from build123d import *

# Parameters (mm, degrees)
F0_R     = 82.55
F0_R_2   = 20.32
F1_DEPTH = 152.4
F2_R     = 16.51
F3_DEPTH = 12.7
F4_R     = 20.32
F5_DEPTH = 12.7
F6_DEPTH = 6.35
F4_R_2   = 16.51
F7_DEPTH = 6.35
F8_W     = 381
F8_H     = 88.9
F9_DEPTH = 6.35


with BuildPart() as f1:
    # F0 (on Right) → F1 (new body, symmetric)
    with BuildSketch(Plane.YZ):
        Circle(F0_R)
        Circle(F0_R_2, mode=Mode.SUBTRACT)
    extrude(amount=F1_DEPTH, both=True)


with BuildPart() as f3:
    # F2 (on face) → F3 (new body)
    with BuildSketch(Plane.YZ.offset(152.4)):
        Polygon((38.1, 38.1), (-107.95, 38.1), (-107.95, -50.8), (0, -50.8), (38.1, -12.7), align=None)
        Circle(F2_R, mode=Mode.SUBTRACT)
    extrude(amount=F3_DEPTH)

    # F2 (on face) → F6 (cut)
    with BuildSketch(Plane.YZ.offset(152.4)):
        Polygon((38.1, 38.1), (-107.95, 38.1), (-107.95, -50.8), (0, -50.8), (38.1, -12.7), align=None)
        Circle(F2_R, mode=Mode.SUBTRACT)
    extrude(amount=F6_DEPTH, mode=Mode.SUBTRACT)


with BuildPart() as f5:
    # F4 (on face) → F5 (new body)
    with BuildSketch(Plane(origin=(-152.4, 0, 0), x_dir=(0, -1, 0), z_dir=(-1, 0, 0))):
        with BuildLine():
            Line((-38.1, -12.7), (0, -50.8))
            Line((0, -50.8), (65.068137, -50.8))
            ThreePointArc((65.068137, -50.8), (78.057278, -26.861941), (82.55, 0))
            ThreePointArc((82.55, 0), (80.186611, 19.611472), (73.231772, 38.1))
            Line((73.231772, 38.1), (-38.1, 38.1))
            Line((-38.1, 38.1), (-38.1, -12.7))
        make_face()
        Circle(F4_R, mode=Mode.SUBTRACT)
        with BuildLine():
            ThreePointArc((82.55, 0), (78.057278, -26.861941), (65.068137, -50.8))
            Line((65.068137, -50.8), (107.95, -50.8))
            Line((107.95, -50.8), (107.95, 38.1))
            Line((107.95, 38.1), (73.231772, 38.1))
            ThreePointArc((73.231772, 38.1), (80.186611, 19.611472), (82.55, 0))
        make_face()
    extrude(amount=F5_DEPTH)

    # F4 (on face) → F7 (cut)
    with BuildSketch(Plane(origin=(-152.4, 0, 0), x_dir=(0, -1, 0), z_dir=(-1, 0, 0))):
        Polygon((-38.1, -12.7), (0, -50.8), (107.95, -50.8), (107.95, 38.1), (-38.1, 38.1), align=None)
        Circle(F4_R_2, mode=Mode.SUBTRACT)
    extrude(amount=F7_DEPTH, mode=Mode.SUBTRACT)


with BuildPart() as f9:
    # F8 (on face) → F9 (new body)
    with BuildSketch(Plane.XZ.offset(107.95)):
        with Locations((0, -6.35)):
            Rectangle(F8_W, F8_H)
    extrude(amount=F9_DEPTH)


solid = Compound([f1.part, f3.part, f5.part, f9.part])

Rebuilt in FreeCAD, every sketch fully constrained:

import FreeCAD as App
import Part
import Sketcher

V = App.Vector
Q = App.Units.Quantity

doc = App.newDocument("Part")
body = doc.addObject("PartDesign::Body", "Body")

sketch1 = body.newObject("Sketcher::SketchObject", "Sketch")
sketch1.AttachmentSupport = (doc.getObject("YZ_Plane"), [""])
sketch1.MapMode = "FlatFace"
sketch1.addGeometry(Part.Circle(V(0, 0, 0), V(0, 0, 1), 82.55), False)
sketch1.addGeometry(Part.Circle(V(0, 0, 0), V(0, 0, 1), 20.32), False)
sketch1.addConstraint(Sketcher.Constraint("Coincident", 0, 3, -1, 1))
sketch1.addConstraint(Sketcher.Constraint("Coincident", 1, 3, -1, 1))
sketch1.addConstraint(Sketcher.Constraint("Diameter", 0, Q("6.5 in")))
sketch1.addConstraint(Sketcher.Constraint("Diameter", 1, Q("1.6 in")))
pad1 = body.newObject("PartDesign::Pad", "Pad")
pad1.Profile = sketch1
pad1.Length = Q("12 in")
pad1.Midplane = True
body2 = doc.addObject("PartDesign::Body", "Body001")

sketch2 = body2.newObject("Sketcher::SketchObject", "Sketch001")
sketch2.AttachmentSupport = (doc.getObject("YZ_Plane001"), [""])
sketch2.MapMode = "FlatFace"
sketch2.AttachmentOffset = App.Placement(V(0, 0, 6 * 25.4), App.Rotation())
sketch2.addGeometry(Part.LineSegment(V(38.1, 38.1, 0), V(-107.95, 38.1, 0)), False)
sketch2.addGeometry(Part.LineSegment(V(-107.95, 38.1, 0), V(-107.95, -50.8, 0)), False)
sketch2.addGeometry(Part.LineSegment(V(-107.95, -50.8, 0), V(0, -50.8, 0)), False)
sketch2.addGeometry(Part.LineSegment(V(0, -50.8, 0), V(38.1, -12.7, 0)), False)
sketch2.addGeometry(Part.LineSegment(V(38.1, -12.7, 0), V(38.1, 38.1, 0)), False)
sketch2.addGeometry(Part.Circle(V(0, 0, 0), V(0, 0, 1), 16.51), False)
sketch2.addConstraint(Sketcher.Constraint("Coincident", 0, 2, 1, 1))
sketch2.addConstraint(Sketcher.Constraint("Coincident", 1, 2, 2, 1))
sketch2.addConstraint(Sketcher.Constraint("Coincident", 2, 2, 3, 1))
sketch2.addConstraint(Sketcher.Constraint("Coincident", 3, 2, 4, 1))
sketch2.addConstraint(Sketcher.Constraint("Coincident", 4, 2, 0, 1))
sketch2.addConstraint(Sketcher.Constraint("Horizontal", 0))
sketch2.addConstraint(Sketcher.Constraint("Vertical", 1))
sketch2.addConstraint(Sketcher.Constraint("Horizontal", 2))
sketch2.addConstraint(Sketcher.Constraint("Vertical", 4))
sketch2.addConstraint(Sketcher.Constraint("Coincident", 5, 3, -1, 1))
sketch2.addConstraint(Sketcher.Constraint("PointOnObject", 2, 2, -2))
sketch2.addConstraint(Sketcher.Constraint("Diameter", 5, Q("1.3 in")))
sketch2.addConstraint(Sketcher.Constraint("DistanceY", 4, 1, 4, 2, Q("2 in")))
sketch2.addConstraint(Sketcher.Constraint("DistanceY", 1, 2, 1, 1, Q("3.5 in")))
sketch2.addConstraint(Sketcher.Constraint("DistanceY", 1, 2, -1, 1, Q("2 in")))
sketch2.addConstraint(Sketcher.Constraint("Angle", 3, Q("45 deg")))
sketch2.addConstraint(Sketcher.Constraint("DistanceX", 0, 2, 0, 1, Q("5.75 in")))
pad2 = body2.newObject("PartDesign::Pad", "Pad001")
pad2.Profile = sketch2
pad2.Length = Q("0.5 in")

sketch3 = body2.newObject("Sketcher::SketchObject", "Sketch002")
sketch3.AttachmentSupport = (doc.getObject("YZ_Plane001"), [""])
sketch3.MapMode = "FlatFace"
sketch3.AttachmentOffset = App.Placement(V(0, 0, 6 * 25.4), App.Rotation())
sketch3.addGeometry(Part.LineSegment(V(38.1, 38.1, 0), V(-107.95, 38.1, 0)), False)
sketch3.addGeometry(Part.LineSegment(V(-107.95, 38.1, 0), V(-107.95, -50.8, 0)), False)
sketch3.addGeometry(Part.LineSegment(V(-107.95, -50.8, 0), V(0, -50.8, 0)), False)
sketch3.addGeometry(Part.LineSegment(V(0, -50.8, 0), V(38.1, -12.7, 0)), False)
sketch3.addGeometry(Part.LineSegment(V(38.1, -12.7, 0), V(38.1, 38.1, 0)), False)
sketch3.addGeometry(Part.Circle(V(0, 0, 0), V(0, 0, 1), 16.51), False)
sketch3.addConstraint(Sketcher.Constraint("Coincident", 0, 2, 1, 1))
sketch3.addConstraint(Sketcher.Constraint("Coincident", 1, 2, 2, 1))
sketch3.addConstraint(Sketcher.Constraint("Coincident", 2, 2, 3, 1))
sketch3.addConstraint(Sketcher.Constraint("Coincident", 3, 2, 4, 1))
sketch3.addConstraint(Sketcher.Constraint("Coincident", 4, 2, 0, 1))
sketch3.addConstraint(Sketcher.Constraint("Horizontal", 0))
sketch3.addConstraint(Sketcher.Constraint("Vertical", 1))
sketch3.addConstraint(Sketcher.Constraint("Horizontal", 2))
sketch3.addConstraint(Sketcher.Constraint("Vertical", 4))
sketch3.addConstraint(Sketcher.Constraint("Coincident", 5, 3, -1, 1))
sketch3.addConstraint(Sketcher.Constraint("PointOnObject", 2, 2, -2))
sketch3.addConstraint(Sketcher.Constraint("Diameter", 5, Q("1.3 in")))
sketch3.addConstraint(Sketcher.Constraint("DistanceY", 4, 1, 4, 2, Q("2 in")))
sketch3.addConstraint(Sketcher.Constraint("DistanceY", 1, 2, 1, 1, Q("3.5 in")))
sketch3.addConstraint(Sketcher.Constraint("DistanceY", 1, 2, -1, 1, Q("2 in")))
sketch3.addConstraint(Sketcher.Constraint("Angle", 3, Q("45 deg")))
sketch3.addConstraint(Sketcher.Constraint("DistanceX", 0, 2, 0, 1, Q("5.75 in")))
pocket1 = body2.newObject("PartDesign::Pocket", "Pocket")
pocket1.Profile = sketch3
pocket1.Length = Q("0.25 in")
pocket1.Reversed = True
body3 = doc.addObject("PartDesign::Body", "Body002")

sketch4 = body3.newObject("Sketcher::SketchObject", "Sketch003")
sketch4.AttachmentSupport = (doc.getObject("YZ_Plane002"), [""])
sketch4.MapMode = "FlatFace"
sketch4.AttachmentOffset = App.Placement(V(0, 0, -6 * 25.4), App.Rotation())
sketch4.addGeometry(Part.LineSegment(V(38.1, -12.7, 0), V(0, -50.8, 0)), False)
sketch4.addGeometry(Part.LineSegment(V(0, -50.8, 0), V(-107.95, -50.8, 0)), False)
sketch4.addGeometry(Part.LineSegment(V(-107.95, -50.8, 0), V(-107.95, 38.1, 0)), False)
sketch4.addGeometry(Part.LineSegment(V(-107.95, 38.1, 0), V(38.1, 38.1, 0)), False)
sketch4.addGeometry(Part.LineSegment(V(38.1, 38.1, 0), V(38.1, -12.7, 0)), False)
sketch4.addGeometry(Part.Circle(V(0, 0, 0), V(0, 0, 1), 20.32), False)
sketch4.addConstraint(Sketcher.Constraint("Coincident", 0, 2, 1, 1))
sketch4.addConstraint(Sketcher.Constraint("Coincident", 1, 2, 2, 1))
sketch4.addConstraint(Sketcher.Constraint("Coincident", 2, 2, 3, 1))
sketch4.addConstraint(Sketcher.Constraint("Coincident", 3, 2, 4, 1))
sketch4.addConstraint(Sketcher.Constraint("Coincident", 4, 2, 0, 1))
sketch4.addConstraint(Sketcher.Constraint("Horizontal", 1))
sketch4.addConstraint(Sketcher.Constraint("Vertical", 2))
sketch4.addConstraint(Sketcher.Constraint("Horizontal", 3))
sketch4.addConstraint(Sketcher.Constraint("Vertical", 4))
sketch4.addConstraint(Sketcher.Constraint("Coincident", 5, 3, -1, 1))
sketch4.addConstraint(Sketcher.Constraint("PointOnObject", 0, 2, -2))
sketch4.addConstraint(Sketcher.Constraint("Diameter", 5, Q("1.6 in")))
sketch4.addConstraint(Sketcher.Constraint("DistanceY", 4, 2, 4, 1, Q("2 in")))
sketch4.addConstraint(Sketcher.Constraint("DistanceY", 2, 1, 2, 2, Q("3.5 in")))
sketch4.addConstraint(Sketcher.Constraint("DistanceY", 0, 2, -1, 1, Q("2 in")))
sketch4.addConstraint(Sketcher.Constraint("Angle", 0, Q("-135 deg")))
sketch4.addConstraint(Sketcher.Constraint("DistanceX", 1, 2, 1, 1, Q("4.25 in")))
pad3 = body3.newObject("PartDesign::Pad", "Pad002")
pad3.Profile = sketch4
pad3.Length = Q("0.5 in")
pad3.Reversed = True

sketch5 = body3.newObject("Sketcher::SketchObject", "Sketch004")
sketch5.AttachmentSupport = (doc.getObject("YZ_Plane002"), [""])
sketch5.MapMode = "FlatFace"
sketch5.AttachmentOffset = App.Placement(V(0, 0, -6 * 25.4), App.Rotation())
sketch5.addGeometry(Part.LineSegment(V(38.1, -12.7, 0), V(0, -50.8, 0)), False)
sketch5.addGeometry(Part.LineSegment(V(0, -50.8, 0), V(-107.95, -50.8, 0)), False)
sketch5.addGeometry(Part.LineSegment(V(-107.95, -50.8, 0), V(-107.95, 38.1, 0)), False)
sketch5.addGeometry(Part.LineSegment(V(-107.95, 38.1, 0), V(38.1, 38.1, 0)), False)
sketch5.addGeometry(Part.LineSegment(V(38.1, 38.1, 0), V(38.1, -12.7, 0)), False)
sketch5.addGeometry(Part.Circle(V(0, 0, 0), V(0, 0, 1), 16.51), False)
sketch5.addConstraint(Sketcher.Constraint("Coincident", 0, 2, 1, 1))
sketch5.addConstraint(Sketcher.Constraint("Coincident", 1, 2, 2, 1))
sketch5.addConstraint(Sketcher.Constraint("Coincident", 2, 2, 3, 1))
sketch5.addConstraint(Sketcher.Constraint("Coincident", 3, 2, 4, 1))
sketch5.addConstraint(Sketcher.Constraint("Coincident", 4, 2, 0, 1))
sketch5.addConstraint(Sketcher.Constraint("Horizontal", 1))
sketch5.addConstraint(Sketcher.Constraint("Vertical", 2))
sketch5.addConstraint(Sketcher.Constraint("Horizontal", 3))
sketch5.addConstraint(Sketcher.Constraint("Vertical", 4))
sketch5.addConstraint(Sketcher.Constraint("Coincident", 5, 3, -1, 1))
sketch5.addConstraint(Sketcher.Constraint("PointOnObject", 0, 2, -2))
sketch5.addConstraint(Sketcher.Constraint("Diameter", 5, Q("1.3 in")))
sketch5.addConstraint(Sketcher.Constraint("DistanceY", 4, 2, 4, 1, Q("2 in")))
sketch5.addConstraint(Sketcher.Constraint("DistanceY", 2, 1, 2, 2, Q("3.5 in")))
sketch5.addConstraint(Sketcher.Constraint("DistanceY", 0, 2, -1, 1, Q("2 in")))
sketch5.addConstraint(Sketcher.Constraint("Angle", 0, Q("-135 deg")))
sketch5.addConstraint(Sketcher.Constraint("DistanceX", 1, 2, 1, 1, Q("4.25 in")))
pocket2 = body3.newObject("PartDesign::Pocket", "Pocket001")
pocket2.Profile = sketch5
pocket2.Length = Q("0.25 in")
body4 = doc.addObject("PartDesign::Body", "Body003")

sketch6 = body4.newObject("Sketcher::SketchObject", "Sketch005")
sketch6.AttachmentSupport = (doc.getObject("XZ_Plane003"), [""])
sketch6.MapMode = "FlatFace"
sketch6.AttachmentOffset = App.Placement(V(0, 0, 4.25 * 25.4), App.Rotation())
sketch6.addGeometry(Part.LineSegment(V(-190.5, 38.1, 0), V(-190.5, -50.8, 0)), False)
sketch6.addGeometry(Part.LineSegment(V(-190.5, -50.8, 0), V(190.5, -50.8, 0)), False)
sketch6.addGeometry(Part.LineSegment(V(190.5, -50.8, 0), V(190.5, 38.1, 0)), False)
sketch6.addGeometry(Part.LineSegment(V(190.5, 38.1, 0), V(-190.5, 38.1, 0)), False)
sketch6.addConstraint(Sketcher.Constraint("Coincident", 0, 2, 1, 1))
sketch6.addConstraint(Sketcher.Constraint("Coincident", 1, 2, 2, 1))
sketch6.addConstraint(Sketcher.Constraint("Coincident", 2, 2, 3, 1))
sketch6.addConstraint(Sketcher.Constraint("Coincident", 3, 2, 0, 1))
sketch6.addConstraint(Sketcher.Constraint("Vertical", 0))
sketch6.addConstraint(Sketcher.Constraint("Horizontal", 1))
sketch6.addConstraint(Sketcher.Constraint("Vertical", 2))
sketch6.addConstraint(Sketcher.Constraint("Horizontal", 3))
sketch6.addConstraint(Sketcher.Constraint("DistanceX", 1, 1, 1, 2, Q("15 in")))
sketch6.addConstraint(Sketcher.Constraint("DistanceY", 0, 2, 0, 1, Q("3.5 in")))
sketch6.addConstraint(Sketcher.Constraint("DistanceY", 0, 2, -1, 1, Q("2 in")))
sketch6.addConstraint(Sketcher.Constraint("DistanceX", 0, 2, -1, 1, Q("7.5 in")))
pad4 = body4.newObject("PartDesign::Pad", "Pad003")
pad4.Profile = sketch6
pad4.Length = Q("0.25 in")

doc.recompute()
